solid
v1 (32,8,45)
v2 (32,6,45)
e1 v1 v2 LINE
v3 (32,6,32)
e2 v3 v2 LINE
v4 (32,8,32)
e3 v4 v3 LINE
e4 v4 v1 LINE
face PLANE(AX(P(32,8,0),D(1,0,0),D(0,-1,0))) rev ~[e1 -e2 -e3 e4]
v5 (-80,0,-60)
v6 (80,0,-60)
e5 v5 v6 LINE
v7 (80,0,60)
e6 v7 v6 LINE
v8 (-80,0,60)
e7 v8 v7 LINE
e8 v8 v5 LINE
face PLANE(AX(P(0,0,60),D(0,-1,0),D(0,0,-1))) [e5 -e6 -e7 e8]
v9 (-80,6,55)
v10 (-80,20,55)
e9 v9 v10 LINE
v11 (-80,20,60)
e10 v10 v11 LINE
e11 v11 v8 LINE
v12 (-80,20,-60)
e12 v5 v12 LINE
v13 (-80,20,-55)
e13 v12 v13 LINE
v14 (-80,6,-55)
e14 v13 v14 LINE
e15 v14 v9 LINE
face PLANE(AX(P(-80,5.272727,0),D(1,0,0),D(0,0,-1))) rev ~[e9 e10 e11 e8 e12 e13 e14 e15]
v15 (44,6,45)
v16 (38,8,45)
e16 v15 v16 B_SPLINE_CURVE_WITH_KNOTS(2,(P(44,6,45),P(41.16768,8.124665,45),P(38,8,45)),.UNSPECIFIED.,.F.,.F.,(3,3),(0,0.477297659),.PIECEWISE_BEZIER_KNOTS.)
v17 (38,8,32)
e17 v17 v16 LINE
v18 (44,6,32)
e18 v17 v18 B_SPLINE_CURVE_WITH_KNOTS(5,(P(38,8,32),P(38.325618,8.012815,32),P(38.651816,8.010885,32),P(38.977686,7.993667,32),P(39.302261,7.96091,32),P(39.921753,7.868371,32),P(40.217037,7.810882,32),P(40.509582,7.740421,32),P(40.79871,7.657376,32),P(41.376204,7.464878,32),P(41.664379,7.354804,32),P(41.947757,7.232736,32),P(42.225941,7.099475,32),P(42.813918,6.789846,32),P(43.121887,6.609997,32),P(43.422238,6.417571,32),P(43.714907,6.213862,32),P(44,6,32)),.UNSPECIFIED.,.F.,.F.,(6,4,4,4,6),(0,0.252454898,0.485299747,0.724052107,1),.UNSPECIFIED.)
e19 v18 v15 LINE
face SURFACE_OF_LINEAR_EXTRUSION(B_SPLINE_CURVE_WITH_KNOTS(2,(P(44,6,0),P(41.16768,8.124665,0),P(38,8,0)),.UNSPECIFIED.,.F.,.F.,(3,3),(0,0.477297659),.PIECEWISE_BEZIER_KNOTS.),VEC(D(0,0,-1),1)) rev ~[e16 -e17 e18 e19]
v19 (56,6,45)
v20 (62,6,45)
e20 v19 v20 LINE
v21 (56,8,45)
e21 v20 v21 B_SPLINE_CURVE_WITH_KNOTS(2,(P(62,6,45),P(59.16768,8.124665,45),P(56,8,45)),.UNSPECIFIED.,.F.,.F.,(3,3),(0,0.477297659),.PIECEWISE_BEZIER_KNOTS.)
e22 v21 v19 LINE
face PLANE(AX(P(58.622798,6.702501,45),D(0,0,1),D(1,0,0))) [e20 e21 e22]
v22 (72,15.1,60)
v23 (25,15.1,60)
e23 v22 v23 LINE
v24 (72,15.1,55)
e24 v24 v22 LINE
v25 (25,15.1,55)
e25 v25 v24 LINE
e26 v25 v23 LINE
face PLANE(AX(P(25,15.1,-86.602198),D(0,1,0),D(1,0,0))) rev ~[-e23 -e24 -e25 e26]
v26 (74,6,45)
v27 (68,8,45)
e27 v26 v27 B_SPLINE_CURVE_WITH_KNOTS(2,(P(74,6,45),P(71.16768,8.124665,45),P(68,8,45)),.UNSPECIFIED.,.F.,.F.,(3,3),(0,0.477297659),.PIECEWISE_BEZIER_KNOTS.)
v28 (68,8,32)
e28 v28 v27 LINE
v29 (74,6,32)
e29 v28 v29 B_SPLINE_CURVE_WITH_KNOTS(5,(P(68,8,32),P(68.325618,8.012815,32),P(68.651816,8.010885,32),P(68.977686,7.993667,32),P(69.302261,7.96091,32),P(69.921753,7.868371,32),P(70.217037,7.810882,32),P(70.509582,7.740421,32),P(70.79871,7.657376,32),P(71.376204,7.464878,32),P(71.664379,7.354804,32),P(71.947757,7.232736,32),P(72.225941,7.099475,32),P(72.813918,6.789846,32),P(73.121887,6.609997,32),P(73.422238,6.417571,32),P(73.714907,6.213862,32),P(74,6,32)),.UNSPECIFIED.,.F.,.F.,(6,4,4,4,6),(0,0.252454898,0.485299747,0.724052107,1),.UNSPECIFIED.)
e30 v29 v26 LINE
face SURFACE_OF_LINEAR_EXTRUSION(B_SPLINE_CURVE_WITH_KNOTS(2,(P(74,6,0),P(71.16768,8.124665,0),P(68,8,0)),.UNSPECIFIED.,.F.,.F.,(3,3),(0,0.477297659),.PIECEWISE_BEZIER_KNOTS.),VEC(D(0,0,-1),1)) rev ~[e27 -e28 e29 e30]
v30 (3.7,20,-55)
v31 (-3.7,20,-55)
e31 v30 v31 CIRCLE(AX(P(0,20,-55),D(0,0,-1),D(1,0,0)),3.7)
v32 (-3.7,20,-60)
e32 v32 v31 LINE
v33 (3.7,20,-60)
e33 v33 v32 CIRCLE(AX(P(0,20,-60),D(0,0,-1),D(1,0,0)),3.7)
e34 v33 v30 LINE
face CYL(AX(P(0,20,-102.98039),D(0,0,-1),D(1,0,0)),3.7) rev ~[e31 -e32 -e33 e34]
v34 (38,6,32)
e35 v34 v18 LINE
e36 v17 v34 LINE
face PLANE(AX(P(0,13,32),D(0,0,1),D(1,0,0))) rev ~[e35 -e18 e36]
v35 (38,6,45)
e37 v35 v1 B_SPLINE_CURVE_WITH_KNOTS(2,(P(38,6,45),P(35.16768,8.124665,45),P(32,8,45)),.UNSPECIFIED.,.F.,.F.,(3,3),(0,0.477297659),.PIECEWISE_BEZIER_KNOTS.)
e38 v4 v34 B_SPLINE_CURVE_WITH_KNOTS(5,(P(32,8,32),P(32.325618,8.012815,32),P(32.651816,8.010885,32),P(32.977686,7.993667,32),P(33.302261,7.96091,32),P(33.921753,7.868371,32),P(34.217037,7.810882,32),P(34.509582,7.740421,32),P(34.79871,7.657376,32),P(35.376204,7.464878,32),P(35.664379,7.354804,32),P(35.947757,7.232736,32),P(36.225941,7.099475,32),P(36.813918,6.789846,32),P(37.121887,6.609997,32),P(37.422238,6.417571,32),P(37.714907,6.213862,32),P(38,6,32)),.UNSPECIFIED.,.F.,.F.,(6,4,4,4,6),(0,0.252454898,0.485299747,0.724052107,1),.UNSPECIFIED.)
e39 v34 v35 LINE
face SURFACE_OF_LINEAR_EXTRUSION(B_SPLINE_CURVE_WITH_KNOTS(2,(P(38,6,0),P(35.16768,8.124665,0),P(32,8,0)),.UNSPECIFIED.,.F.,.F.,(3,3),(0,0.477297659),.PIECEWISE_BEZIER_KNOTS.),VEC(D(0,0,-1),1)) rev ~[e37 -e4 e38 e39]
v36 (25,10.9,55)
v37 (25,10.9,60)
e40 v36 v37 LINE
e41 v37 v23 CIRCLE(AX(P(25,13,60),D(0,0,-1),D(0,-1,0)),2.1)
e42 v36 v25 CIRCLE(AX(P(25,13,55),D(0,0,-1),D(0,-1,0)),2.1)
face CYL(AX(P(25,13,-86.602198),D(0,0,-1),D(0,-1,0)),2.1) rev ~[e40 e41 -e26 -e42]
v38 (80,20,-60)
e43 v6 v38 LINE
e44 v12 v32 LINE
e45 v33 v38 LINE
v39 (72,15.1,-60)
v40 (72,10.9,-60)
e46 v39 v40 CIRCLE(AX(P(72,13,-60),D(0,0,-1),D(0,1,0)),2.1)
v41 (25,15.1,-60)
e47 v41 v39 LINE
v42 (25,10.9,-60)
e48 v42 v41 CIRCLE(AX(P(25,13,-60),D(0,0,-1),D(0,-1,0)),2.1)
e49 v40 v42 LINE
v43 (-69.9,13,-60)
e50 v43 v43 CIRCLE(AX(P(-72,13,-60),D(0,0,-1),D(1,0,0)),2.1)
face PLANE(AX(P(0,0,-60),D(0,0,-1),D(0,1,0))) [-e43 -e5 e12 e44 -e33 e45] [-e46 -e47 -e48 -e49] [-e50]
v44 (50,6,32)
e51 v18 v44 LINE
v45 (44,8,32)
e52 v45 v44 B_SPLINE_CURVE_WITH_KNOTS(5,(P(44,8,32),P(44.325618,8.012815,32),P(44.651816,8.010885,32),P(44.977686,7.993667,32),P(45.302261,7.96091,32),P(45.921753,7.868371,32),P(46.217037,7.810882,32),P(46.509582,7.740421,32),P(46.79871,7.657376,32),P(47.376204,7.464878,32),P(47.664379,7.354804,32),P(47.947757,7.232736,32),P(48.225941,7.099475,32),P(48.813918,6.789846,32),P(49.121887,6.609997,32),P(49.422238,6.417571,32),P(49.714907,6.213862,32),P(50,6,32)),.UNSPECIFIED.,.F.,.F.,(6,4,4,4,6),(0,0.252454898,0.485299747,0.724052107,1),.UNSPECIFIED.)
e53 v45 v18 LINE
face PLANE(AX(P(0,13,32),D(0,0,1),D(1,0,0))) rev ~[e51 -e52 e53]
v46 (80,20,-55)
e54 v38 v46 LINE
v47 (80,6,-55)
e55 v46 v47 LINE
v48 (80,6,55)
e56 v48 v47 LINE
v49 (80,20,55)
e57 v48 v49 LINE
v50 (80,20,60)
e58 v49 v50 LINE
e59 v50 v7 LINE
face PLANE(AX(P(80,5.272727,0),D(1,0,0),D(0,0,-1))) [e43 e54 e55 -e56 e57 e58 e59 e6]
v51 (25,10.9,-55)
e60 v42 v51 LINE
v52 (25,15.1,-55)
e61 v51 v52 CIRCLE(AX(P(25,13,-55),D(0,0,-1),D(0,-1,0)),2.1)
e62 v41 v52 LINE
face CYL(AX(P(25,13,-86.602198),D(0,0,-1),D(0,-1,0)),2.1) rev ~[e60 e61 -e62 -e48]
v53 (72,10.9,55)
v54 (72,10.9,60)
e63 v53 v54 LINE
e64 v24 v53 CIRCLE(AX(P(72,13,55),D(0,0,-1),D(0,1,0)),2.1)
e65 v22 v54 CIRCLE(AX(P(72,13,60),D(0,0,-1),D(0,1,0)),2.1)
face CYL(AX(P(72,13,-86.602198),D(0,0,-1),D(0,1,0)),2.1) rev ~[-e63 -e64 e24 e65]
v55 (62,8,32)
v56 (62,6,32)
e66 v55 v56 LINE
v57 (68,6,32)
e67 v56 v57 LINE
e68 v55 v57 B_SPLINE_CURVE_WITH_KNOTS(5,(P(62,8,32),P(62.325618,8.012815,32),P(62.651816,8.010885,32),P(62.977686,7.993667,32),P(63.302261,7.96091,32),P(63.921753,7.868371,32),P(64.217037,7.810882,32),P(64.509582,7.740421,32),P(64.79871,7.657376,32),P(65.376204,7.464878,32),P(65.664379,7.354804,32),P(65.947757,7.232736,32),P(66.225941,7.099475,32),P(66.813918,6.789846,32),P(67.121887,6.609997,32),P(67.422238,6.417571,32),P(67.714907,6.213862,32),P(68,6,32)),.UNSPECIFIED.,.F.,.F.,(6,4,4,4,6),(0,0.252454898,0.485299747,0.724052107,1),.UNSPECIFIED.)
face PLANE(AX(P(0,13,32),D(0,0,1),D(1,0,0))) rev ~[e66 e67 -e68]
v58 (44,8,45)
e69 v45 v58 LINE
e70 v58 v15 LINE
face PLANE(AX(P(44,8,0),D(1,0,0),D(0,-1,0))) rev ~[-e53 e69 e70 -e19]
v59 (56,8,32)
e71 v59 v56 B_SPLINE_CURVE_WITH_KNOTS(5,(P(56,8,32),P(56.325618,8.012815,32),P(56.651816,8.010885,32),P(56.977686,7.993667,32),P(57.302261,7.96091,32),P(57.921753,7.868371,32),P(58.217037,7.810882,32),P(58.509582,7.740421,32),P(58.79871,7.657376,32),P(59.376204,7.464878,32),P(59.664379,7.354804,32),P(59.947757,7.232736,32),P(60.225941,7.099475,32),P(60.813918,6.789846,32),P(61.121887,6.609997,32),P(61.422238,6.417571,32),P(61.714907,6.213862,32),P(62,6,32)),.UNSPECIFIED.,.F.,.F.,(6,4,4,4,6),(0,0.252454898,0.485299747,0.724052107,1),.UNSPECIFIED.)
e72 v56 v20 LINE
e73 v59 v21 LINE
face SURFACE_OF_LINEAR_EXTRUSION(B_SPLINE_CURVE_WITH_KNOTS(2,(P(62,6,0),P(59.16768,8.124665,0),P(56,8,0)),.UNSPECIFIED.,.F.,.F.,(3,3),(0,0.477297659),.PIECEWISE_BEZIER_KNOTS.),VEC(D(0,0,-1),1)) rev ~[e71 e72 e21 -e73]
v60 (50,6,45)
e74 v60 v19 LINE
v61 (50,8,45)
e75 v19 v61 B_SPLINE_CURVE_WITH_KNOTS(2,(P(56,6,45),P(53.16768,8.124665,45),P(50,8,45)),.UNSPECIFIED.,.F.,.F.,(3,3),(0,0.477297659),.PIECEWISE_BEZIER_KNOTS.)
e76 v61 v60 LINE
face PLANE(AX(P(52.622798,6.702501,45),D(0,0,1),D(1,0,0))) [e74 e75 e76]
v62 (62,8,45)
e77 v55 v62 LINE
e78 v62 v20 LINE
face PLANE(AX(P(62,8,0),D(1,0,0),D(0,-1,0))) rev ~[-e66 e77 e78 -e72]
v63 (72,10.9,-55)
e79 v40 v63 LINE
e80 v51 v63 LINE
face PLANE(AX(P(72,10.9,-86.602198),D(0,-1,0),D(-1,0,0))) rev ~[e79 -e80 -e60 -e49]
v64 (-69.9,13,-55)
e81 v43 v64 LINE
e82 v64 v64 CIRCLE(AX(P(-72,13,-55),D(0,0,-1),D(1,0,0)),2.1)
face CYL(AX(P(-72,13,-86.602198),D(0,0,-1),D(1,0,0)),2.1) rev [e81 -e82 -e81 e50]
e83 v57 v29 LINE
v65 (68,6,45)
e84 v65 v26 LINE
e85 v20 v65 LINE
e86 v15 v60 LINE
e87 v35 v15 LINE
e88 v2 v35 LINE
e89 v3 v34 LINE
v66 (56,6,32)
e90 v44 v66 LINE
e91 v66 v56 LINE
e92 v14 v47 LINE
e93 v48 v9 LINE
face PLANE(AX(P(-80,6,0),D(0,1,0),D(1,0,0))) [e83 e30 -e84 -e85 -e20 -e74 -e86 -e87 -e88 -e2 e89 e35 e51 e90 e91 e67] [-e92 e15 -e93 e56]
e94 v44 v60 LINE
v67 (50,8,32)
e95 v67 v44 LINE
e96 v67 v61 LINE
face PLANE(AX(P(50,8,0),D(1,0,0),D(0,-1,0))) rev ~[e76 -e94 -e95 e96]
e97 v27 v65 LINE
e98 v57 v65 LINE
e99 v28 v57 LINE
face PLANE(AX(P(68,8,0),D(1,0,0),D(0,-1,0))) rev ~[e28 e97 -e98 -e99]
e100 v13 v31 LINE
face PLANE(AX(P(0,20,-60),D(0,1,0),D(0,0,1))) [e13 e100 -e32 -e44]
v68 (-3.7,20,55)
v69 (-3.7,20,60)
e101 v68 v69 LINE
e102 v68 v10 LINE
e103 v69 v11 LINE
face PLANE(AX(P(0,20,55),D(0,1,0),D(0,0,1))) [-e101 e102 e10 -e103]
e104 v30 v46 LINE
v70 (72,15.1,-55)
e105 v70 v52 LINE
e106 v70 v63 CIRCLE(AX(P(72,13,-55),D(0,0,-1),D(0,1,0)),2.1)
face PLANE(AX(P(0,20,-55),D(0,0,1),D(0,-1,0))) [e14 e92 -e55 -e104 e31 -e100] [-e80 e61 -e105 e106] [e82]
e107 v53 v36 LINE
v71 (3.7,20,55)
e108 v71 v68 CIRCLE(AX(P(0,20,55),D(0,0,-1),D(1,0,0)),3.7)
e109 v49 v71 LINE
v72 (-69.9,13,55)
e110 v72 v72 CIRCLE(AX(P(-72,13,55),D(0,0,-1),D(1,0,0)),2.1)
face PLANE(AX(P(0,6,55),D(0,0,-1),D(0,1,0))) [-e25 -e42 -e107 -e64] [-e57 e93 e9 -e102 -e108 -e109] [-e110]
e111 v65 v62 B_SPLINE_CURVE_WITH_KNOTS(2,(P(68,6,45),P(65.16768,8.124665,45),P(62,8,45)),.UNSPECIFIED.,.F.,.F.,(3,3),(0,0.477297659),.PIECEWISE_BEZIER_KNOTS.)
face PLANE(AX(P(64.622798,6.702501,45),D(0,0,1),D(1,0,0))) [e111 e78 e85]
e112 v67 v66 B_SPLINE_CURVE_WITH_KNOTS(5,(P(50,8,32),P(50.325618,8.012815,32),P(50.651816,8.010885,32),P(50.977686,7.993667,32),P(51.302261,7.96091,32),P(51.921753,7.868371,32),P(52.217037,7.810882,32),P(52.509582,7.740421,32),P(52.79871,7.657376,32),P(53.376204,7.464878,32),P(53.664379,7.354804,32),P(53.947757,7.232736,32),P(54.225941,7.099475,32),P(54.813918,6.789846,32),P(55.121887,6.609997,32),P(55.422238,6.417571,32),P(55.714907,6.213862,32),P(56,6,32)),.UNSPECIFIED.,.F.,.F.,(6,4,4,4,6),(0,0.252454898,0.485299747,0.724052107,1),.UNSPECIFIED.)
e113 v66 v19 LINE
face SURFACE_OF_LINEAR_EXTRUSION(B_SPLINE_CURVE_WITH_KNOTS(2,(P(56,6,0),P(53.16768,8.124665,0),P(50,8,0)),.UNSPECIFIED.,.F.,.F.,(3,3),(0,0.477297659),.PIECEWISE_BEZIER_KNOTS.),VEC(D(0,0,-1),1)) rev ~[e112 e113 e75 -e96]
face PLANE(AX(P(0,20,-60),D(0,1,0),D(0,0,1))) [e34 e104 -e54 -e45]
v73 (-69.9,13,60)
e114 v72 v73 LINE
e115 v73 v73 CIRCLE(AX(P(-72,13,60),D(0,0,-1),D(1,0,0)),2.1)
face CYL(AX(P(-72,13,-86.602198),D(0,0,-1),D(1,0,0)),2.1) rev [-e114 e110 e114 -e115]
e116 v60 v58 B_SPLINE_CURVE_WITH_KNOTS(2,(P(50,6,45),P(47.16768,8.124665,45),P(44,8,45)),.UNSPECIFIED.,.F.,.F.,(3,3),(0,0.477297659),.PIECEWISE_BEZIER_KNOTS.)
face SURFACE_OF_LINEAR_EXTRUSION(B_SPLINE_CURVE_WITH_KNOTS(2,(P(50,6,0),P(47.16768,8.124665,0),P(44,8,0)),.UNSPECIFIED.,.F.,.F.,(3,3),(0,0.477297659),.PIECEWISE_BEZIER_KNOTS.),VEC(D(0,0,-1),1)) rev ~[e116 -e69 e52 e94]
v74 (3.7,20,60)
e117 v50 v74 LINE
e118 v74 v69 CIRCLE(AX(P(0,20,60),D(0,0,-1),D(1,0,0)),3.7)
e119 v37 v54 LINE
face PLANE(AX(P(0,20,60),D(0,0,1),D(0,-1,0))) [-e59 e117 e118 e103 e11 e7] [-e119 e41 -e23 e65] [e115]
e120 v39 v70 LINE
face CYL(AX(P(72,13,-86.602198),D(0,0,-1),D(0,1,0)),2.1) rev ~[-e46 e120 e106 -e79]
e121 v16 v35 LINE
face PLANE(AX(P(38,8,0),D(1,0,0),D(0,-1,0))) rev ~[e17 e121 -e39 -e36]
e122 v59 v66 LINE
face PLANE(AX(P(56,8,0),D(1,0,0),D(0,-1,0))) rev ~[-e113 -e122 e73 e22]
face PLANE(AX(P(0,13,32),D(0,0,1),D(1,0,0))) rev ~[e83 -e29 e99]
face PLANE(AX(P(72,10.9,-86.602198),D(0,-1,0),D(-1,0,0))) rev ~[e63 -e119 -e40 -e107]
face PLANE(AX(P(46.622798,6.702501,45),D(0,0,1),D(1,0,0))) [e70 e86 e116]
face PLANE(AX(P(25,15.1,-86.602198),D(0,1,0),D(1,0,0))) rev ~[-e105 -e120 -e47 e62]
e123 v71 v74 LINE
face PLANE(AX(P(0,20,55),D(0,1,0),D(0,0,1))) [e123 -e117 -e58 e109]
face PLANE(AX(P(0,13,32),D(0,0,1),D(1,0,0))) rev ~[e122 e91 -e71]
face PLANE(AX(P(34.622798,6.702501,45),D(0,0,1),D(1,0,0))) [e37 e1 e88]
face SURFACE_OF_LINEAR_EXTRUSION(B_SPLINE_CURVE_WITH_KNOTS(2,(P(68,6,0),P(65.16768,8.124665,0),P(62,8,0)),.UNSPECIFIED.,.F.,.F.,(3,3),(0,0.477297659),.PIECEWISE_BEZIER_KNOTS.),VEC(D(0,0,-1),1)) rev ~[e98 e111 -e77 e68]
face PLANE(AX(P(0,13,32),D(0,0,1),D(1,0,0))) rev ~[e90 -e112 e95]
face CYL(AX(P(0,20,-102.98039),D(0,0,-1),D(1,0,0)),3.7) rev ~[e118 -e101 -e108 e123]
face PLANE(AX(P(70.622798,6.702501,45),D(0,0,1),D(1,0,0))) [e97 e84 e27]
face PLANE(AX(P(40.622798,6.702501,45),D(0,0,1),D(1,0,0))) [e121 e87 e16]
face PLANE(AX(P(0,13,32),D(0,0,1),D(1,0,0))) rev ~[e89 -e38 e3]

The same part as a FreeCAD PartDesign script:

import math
import FreeCAD as App
import Part
import Sketcher
from FreeCAD import Vector
Q = App.Units.Quantity

doc = App.newDocument("Part")
body = doc.addObject("PartDesign::Body", "Body")

sketch1 = body.newObject("Sketcher::SketchObject", "Sketch")
sketch1.AttachmentSupport = (doc.getObject("YZ_Plane"), [""])
sketch1.MapMode = "FlatFace"
sketch1.addGeometry([
    Part.LineSegment(Vector(20, 60, 0), Vector(0, 60, 0)),
    Part.LineSegment(Vector(0, 60, 0), Vector(0, -60, 0)),
    Part.LineSegment(Vector(0, -60, 0), Vector(20, -60, 0)),
    Part.LineSegment(Vector(20, -60, 0), Vector(20, -55, 0)),
    Part.LineSegment(Vector(20, -55, 0), Vector(6, -55, 0)),
    Part.LineSegment(Vector(6, -55, 0), Vector(6, 55, 0)),
    Part.LineSegment(Vector(6, 55, 0), Vector(20, 55, 0)),
    Part.LineSegment(Vector(20, 55, 0), Vector(20, 60, 0)),
], False)
sketch1.addConstraint([
    Sketcher.Constraint("Coincident", 0, 2, 1, 1),
    Sketcher.Constraint("Coincident", 1, 2, 2, 1),
    Sketcher.Constraint("Coincident", 2, 2, 3, 1),
    Sketcher.Constraint("Coincident", 3, 2, 4, 1),
    Sketcher.Constraint("Coincident", 4, 2, 5, 1),
    Sketcher.Constraint("Coincident", 5, 2, 6, 1),
    Sketcher.Constraint("Coincident", 6, 2, 7, 1),
    Sketcher.Constraint("Coincident", 7, 2, 0, 1),
    Sketcher.Constraint("Horizontal", 0),
    Sketcher.Constraint("Vertical", 1),
    Sketcher.Constraint("Horizontal", 2),
    Sketcher.Constraint("Vertical", 3),
    Sketcher.Constraint("Horizontal", 4),
    Sketcher.Constraint("Vertical", 5),
    Sketcher.Constraint("Horizontal", 6),
    Sketcher.Constraint("Vertical", 7),
    Sketcher.Constraint("Symmetric", 0, 2, 1, 2, -1, 1),
    Sketcher.Constraint("Symmetric", 3, 2, 6, 2, -1),
    Sketcher.Constraint("DistanceX", 0, 2, 0, 1, Q("20 mm")),
    Sketcher.Constraint("DistanceX", 4, 2, 4, 1, Q("14 mm")),
    Sketcher.Constraint("DistanceY", 1, 2, 1, 1, Q("120 mm")),
    Sketcher.Constraint("DistanceY", 3, 1, 3, 2, Q("5 mm")),
])
pad1 = body.newObject("PartDesign::Pad", "Pad")
pad1.Profile = sketch1
pad1.Length = 160
pad1.Midplane = True

sketch2 = body.newObject("Sketcher::SketchObject", "Sketch001")
sketch2.AttachmentSupport = (doc.getObject("XY_Plane"), [""])
sketch2.MapMode = "FlatFace"
sketch2.AttachmentOffset = App.Placement(Vector(0, 0, 60), App.Rotation())
sketch2.addGeometry([
    Part.Circle(Vector(-72, 13, 0), Vector(0, 0, 1), 2.1),
    Part.LineSegment(Vector(72, 15.1, 0), Vector(25, 15.1, 0)),
    Part.ArcOfCircle(Part.Circle(Vector(25, 13, 0), Vector(0, 0, 1), 2.1), math.radians(90), math.radians(270)),
    Part.LineSegment(Vector(25, 10.9, 0), Vector(72, 10.9, 0)),
    Part.ArcOfCircle(Part.Circle(Vector(72, 13, 0), Vector(0, 0, 1), 2.1), math.radians(-90), math.radians(90)),
], False)
sketch2.addConstraint([
    Sketcher.Constraint("Tangent", 1, 2, 2, 1),
    Sketcher.Constraint("Tangent", 2, 2, 3, 1),
    Sketcher.Constraint("Tangent", 3, 2, 4, 1),
    Sketcher.Constraint("Tangent", 4, 2, 1, 1),
    Sketcher.Constraint("Horizontal", 1),
    Sketcher.Constraint("Horizontal", 3),
    Sketcher.Constraint("Equal", 0, 2),
    Sketcher.Constraint("Symmetric", 0, 3, 4, 3, -2),
    Sketcher.Constraint("Diameter", 0, Q("4.2 mm")),
    Sketcher.Constraint("DistanceX", 1, 2, 1, 1, Q("47 mm")),
    Sketcher.Constraint("DistanceX", 0, 3, -1, 1, Q("72 mm")),
    Sketcher.Constraint("DistanceY", -1, 1, 0, 3, Q("13 mm")),
])
pocket1 = body.newObject("PartDesign::Pocket", "Pocket")
pocket1.Profile = sketch2
pocket1.Type = "ThroughAll"
pocket1.Midplane = True

sketch3 = body.newObject("Sketcher::SketchObject", "Sketch002")
sketch3.AttachmentSupport = (doc.getObject("XY_Plane"), [""])
sketch3.MapMode = "FlatFace"
sketch3.addGeometry([
    Part.LineSegment(Vector(3.7, 20, 0), Vector(-3.7, 20, 0)),
    Part.ArcOfCircle(Part.Circle(Vector(0, 20, 0), Vector(0, 0, 1), 3.7), math.radians(180), math.radians(360)),
], False)
sketch3.addConstraint([
    Sketcher.Constraint("Coincident", 0, 1, 1, 2),
    Sketcher.Constraint("Coincident", 1, 1, 0, 2),
    Sketcher.Constraint("Horizontal", 0),
    Sketcher.Constraint("PointOnObject", 1, 3, -2),
    Sketcher.Constraint("Horizontal", 1, 3, 0, 1),
    Sketcher.Constraint("Radius", 1, Q("3.7 mm")),
    Sketcher.Constraint("DistanceY", -1, 1, 1, 3, Q("20 mm")),
])
pocket2 = body.newObject("PartDesign::Pocket", "Pocket001")
pocket2.Profile = sketch3
pocket2.Type = "ThroughAll"
pocket2.Midplane = True

sketch4 = body.newObject("Sketcher::SketchObject", "Sketch003")
sketch4.AttachmentSupport = (doc.getObject("XY_Plane"), [""])
sketch4.MapMode = "FlatFace"
sketch4.addGeometry([
    Part.LineSegment(Vector(38, 6, 0), Vector(32, 6, 0)),
    Part.LineSegment(Vector(32, 6, 0), Vector(32, 8, 0)),
    Part.BSplineCurve([Vector(38, 6, 0), Vector(35.16768, 8.124665, 0), Vector(32, 8, 0)], [3, 3], [0, 0.477297659], False, 2, [1, 1, 1], False),
], False)
sketch4.addConstraint([
    Sketcher.Constraint("Block", 2),
    Sketcher.Constraint("Coincident", 0, 2, 1, 1),
    Sketcher.Constraint("Coincident", 1, 2, 2, 2),
    Sketcher.Constraint("Coincident", 2, 1, 0, 1),
    Sketcher.Constraint("Horizontal", 0),
    Sketcher.Constraint("Vertical", 1),
])
pad2 = body.newObject("PartDesign::Pad", "Pad001")
pad2.Profile = sketch4
pad2.Length = 45
doc.recompute()

linearpattern = body.newObject("PartDesign::LinearPattern", "LinearPattern")
linearpattern.Originals = [pad2]
linearpattern.Direction = (doc.getObject("X_Axis"), [""])
linearpattern.Mode = "offset"
linearpattern.Offset = 6
linearpattern.Occurrences = 7
body.Tip = linearpattern

sketch5 = body.newObject("Sketcher::SketchObject", "Sketch004")
sketch5.AttachmentSupport = (doc.getObject("XY_Plane"), [""])
sketch5.MapMode = "FlatFace"
sketch5.addGeometry([
    Part.LineSegment(Vector(-80, 20, 0), Vector(-80, 6, 0)),
    Part.LineSegment(Vector(-80, 6, 0), Vector(80, 6, 0)),
    Part.LineSegment(Vector(80, 6, 0), Vector(80, 20, 0)),
    Part.LineSegment(Vector(80, 20, 0), Vector(-80, 20, 0)),
], False)
sketch5.addConstraint([
    Sketcher.Constraint("Coincident", 0, 2, 1, 1),
    Sketcher.Constraint("Coincident", 1, 2, 2, 1),
    Sketcher.Constraint("Coincident", 2, 2, 3, 1),
    Sketcher.Constraint("Coincident", 3, 2, 0, 1),
    Sketcher.Constraint("Vertical", 0),
    Sketcher.Constraint("Horizontal", 1),
    Sketcher.Constraint("Vertical", 2),
    Sketcher.Constraint("Horizontal", 3),
    Sketcher.Constraint("DistanceX", 1, 1, 1, 2, Q("160 mm")),
    Sketcher.Constraint("DistanceY", 0, 2, 0, 1, Q("14 mm")),
    Sketcher.Constraint("DistanceX", 0, 2, -1, 1, Q("80 mm")),
    Sketcher.Constraint("DistanceY", -1, 1, 0, 2, Q("6 mm")),
])
pocket3 = body.newObject("PartDesign::Pocket", "Pocket002")
pocket3.Profile = sketch5
pocket3.Length = 32
pocket3.Reversed = True

doc.recompute()
